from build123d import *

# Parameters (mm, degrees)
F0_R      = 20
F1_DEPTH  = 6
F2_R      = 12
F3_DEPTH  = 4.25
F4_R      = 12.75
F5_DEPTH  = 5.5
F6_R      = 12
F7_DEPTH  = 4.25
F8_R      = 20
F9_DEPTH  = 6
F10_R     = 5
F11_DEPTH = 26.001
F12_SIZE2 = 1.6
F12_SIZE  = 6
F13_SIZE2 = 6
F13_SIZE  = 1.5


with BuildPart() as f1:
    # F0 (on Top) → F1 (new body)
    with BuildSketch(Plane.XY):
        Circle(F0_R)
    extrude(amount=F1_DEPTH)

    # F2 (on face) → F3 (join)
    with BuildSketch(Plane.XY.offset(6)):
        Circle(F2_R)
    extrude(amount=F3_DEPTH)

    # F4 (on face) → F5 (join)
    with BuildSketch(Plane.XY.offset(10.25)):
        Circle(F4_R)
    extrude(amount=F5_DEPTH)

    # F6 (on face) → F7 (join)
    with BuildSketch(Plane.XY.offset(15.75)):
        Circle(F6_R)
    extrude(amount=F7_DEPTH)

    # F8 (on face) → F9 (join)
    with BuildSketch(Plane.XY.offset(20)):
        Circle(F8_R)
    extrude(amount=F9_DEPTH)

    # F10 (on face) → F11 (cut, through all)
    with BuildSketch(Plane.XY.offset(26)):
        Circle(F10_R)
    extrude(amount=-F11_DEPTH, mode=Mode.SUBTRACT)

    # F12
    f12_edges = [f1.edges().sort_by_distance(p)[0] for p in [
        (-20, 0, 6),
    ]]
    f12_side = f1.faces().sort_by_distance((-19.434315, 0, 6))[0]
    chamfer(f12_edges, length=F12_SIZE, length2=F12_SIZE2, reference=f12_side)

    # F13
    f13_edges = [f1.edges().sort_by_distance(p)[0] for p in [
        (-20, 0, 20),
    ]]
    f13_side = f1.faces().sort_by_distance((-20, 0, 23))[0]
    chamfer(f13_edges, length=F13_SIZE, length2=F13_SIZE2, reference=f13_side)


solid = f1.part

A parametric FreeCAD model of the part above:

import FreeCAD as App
import Part
import Sketcher
from FreeCAD import Vector
Q = App.Units.Quantity


def edges_at(feature, points):
    """Names of the edges that pass closest to the given points."""
    edges = feature.Shape.Edges
    near = lambda p: min(range(len(edges)), key=lambda i: edges[i].distToShape(Part.Vertex(*p))[0])
    return sorted({f"Edge{near(p) + 1}" for p in points})

doc = App.newDocument("Part")
body = doc.addObject("PartDesign::Body", "Body")

# Sketch on XY plane
sketch1 = body.newObject("Sketcher::SketchObject", "Sketch")
sketch1.AttachmentSupport = (doc.getObject("XY_Plane"), [""])
sketch1.MapMode = "FlatFace"
sketch1.addGeometry(Part.Circle(Vector(0, 0, 0), Vector(0, 0, 1), 20), False)
sketch1.addConstraint(Sketcher.Constraint("Coincident", 0, 3, -1, 1))
sketch1.addConstraint(Sketcher.Constraint("Diameter", 0, Q("40 mm")))
pad1 = body.newObject("PartDesign::Pad", "Pad")
pad1.Profile = sketch1
pad1.Length = 6

# Sketch on XY plane
sketch2 = body.newObject("Sketcher::SketchObject", "Sketch001")
sketch2.AttachmentSupport = (doc.getObject("XY_Plane"), [""])
sketch2.MapMode = "FlatFace"
sketch2.AttachmentOffset = App.Placement(Vector(0, 0, 6), App.Rotation())
sketch2.addGeometry(Part.Circle(Vector(0, 0, 0), Vector(0, 0, 1), 12), False)
sketch2.addConstraint(Sketcher.Constraint("Coincident", 0, 3, -1, 1))
sketch2.addConstraint(Sketcher.Constraint("Diameter", 0, Q("24 mm")))
pad2 = body.newObject("PartDesign::Pad", "Pad001")
pad2.Profile = sketch2
pad2.Length = 4.25

# Sketch on XY plane
sketch3 = body.newObject("Sketcher::SketchObject", "Sketch002")
sketch3.AttachmentSupport = (doc.getObject("XY_Plane"), [""])
sketch3.MapMode = "FlatFace"
sketch3.AttachmentOffset = App.Placement(Vector(0, 0, 10.25), App.Rotation())
sketch3.addGeometry(Part.Circle(Vector(0, 0, 0), Vector(0, 0, 1), 13), False)
sketch3.addConstraint(Sketcher.Constraint("Coincident", 0, 3, -1, 1))
sketch3.addConstraint(Sketcher.Constraint("Diameter", 0, Q("25.5 mm")))
pad3 = body.newObject("PartDesign::Pad", "Pad002")
pad3.Profile = sketch3
pad3.Length = 5.5

# Sketch on XY plane
sketch4 = body.newObject("Sketcher::SketchObject", "Sketch003")
sketch4.AttachmentSupport = (doc.getObject("XY_Plane"), [""])
sketch4.MapMode = "FlatFace"
sketch4.AttachmentOffset = App.Placement(Vector(0, 0, 15.75), App.Rotation())
sketch4.addGeometry(Part.Circle(Vector(0, 0, 0), Vector(0, 0, 1), 12), False)
sketch4.addConstraint(Sketcher.Constraint("Coincident", 0, 3, -1, 1))
sketch4.addConstraint(Sketcher.Constraint("Diameter", 0, Q("24 mm")))
pad4 = body.newObject("PartDesign::Pad", "Pad003")
pad4.Profile = sketch4
pad4.Length = 4.25

# Sketch on XY plane
sketch5 = body.newObject("Sketcher::SketchObject", "Sketch004")
sketch5.AttachmentSupport = (doc.getObject("XY_Plane"), [""])
sketch5.MapMode = "FlatFace"
sketch5.AttachmentOffset = App.Placement(Vector(0, 0, 20), App.Rotation())
sketch5.addGeometry(Part.Circle(Vector(0, 0, 0), Vector(0, 0, 1), 20), False)
sketch5.addConstraint(Sketcher.Constraint("Coincident", 0, 3, -1, 1))
sketch5.addConstraint(Sketcher.Constraint("Diameter", 0, Q("40 mm")))
pad5 = body.newObject("PartDesign::Pad", "Pad004")
pad5.Profile = sketch5
pad5.Length = 6

# Sketch on XY plane
sketch6 = body.newObject("Sketcher::SketchObject", "Sketch005")
sketch6.AttachmentSupport = (doc.getObject("XY_Plane"), [""])
sketch6.MapMode = "FlatFace"
sketch6.AttachmentOffset = App.Placement(Vector(0, 0, 26), App.Rotation())
sketch6.addGeometry(Part.Circle(Vector(0, 0, 0), Vector(0, 0, 1), 5), False)
sketch6.addConstraint(Sketcher.Constraint("Coincident", 0, 3, -1, 1))
sketch6.addConstraint(Sketcher.Constraint("Diameter", 0, Q("10 mm")))
pocket1 = body.newObject("PartDesign::Pocket", "Pocket")
pocket1.Profile = sketch6
pocket1.Type = "ThroughAll"
doc.recompute()

chamfer = body.newObject("PartDesign::Chamfer", "Chamfer")
chamfer.Base = (pocket1, edges_at(pocket1, [(-20, 0, 6)]))
chamfer.ChamferType = "Two distances"
chamfer.Size = 6
chamfer.Size2 = 1.6
chamfer.FlipDirection = True
doc.recompute()

chamfer2 = body.newObject("PartDesign::Chamfer", "Chamfer001")
chamfer2.Base = (chamfer, edges_at(chamfer, [(-20, 0, 20)]))
chamfer2.ChamferType = "Two distances"
chamfer2.Size = 1.5
chamfer2.Size2 = 6

doc.recompute()
